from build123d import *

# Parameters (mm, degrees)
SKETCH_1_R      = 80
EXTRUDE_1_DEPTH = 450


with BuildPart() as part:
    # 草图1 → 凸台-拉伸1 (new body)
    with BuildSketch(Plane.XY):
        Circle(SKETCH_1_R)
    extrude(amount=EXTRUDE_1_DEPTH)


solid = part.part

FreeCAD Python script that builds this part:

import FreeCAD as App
import Part
import Sketcher

V = App.Vector

doc = App.newDocument("Part")
body = doc.addObject("PartDesign::Body", "Body")

# Sketch on XY plane
sketch1 = body.newObject("Sketcher::SketchObject", "Sketch")
sketch1.AttachmentSupport = (doc.getObject("XY_Plane"), [""])
sketch1.MapMode = "FlatFace"
sketch1.addGeometry(Part.Circle(V(0, 0, 0), V(0, 0, 1), 80), False)
sketch1.addConstraint(Sketcher.Constraint("Coincident", 0, 3, -1, 1))
sketch1.addConstraint(Sketcher.Constraint("Diameter", 0, 160.0))
pad1 = body.newObject("PartDesign::Pad", "Pad")
pad1.Profile = sketch1
pad1.Length = 450

doc.recompute()
